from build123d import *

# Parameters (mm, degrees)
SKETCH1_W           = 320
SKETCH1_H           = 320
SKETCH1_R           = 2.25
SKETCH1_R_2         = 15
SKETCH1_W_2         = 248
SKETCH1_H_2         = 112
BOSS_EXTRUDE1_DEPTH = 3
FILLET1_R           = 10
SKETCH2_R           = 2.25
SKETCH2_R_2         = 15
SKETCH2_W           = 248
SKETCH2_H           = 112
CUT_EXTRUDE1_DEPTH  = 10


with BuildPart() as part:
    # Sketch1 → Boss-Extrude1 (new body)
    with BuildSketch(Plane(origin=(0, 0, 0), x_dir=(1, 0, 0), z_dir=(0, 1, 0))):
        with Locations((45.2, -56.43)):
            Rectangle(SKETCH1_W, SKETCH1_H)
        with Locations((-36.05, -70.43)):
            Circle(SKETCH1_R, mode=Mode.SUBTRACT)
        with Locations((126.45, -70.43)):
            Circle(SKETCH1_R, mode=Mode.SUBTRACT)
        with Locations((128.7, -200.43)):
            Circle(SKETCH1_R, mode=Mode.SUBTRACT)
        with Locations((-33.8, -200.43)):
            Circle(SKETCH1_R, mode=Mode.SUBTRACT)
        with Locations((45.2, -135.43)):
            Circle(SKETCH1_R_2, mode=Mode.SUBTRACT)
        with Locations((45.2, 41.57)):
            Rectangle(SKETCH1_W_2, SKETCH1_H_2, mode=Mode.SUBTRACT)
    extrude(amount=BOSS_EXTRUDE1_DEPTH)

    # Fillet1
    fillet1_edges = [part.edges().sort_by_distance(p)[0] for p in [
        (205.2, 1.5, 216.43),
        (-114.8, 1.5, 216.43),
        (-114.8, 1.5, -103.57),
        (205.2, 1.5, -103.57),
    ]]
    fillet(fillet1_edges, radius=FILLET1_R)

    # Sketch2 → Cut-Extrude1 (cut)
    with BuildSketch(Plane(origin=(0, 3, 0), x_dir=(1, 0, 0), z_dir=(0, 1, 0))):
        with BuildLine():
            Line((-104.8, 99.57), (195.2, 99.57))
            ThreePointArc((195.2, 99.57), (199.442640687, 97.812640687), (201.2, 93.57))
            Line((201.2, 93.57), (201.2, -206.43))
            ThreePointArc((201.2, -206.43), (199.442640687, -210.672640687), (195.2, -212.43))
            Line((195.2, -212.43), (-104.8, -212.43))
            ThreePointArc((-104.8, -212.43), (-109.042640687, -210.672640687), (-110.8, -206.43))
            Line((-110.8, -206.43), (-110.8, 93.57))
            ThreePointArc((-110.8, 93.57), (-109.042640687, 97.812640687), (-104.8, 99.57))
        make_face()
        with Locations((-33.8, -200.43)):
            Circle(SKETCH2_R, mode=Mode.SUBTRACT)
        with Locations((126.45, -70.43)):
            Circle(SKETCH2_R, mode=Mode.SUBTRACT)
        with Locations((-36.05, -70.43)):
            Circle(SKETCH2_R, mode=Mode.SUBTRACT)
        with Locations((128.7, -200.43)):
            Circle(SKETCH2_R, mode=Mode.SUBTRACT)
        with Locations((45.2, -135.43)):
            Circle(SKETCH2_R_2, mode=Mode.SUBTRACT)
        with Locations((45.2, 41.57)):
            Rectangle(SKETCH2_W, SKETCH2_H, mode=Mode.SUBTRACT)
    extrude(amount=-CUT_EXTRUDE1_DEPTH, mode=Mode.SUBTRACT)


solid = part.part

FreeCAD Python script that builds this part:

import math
import FreeCAD as App
import Part
import Sketcher


def edges_at(feature, points):
    """Names of the edges that pass closest to the given points."""
    edges = feature.Shape.Edges
    near = lambda p: min(range(len(edges)), key=lambda i: edges[i].distToShape(Part.Vertex(*p))[0])
    return sorted({f"Edge{near(p) + 1}" for p in points})


def add_polygon(sketch, points):
    """Adds a closed chain of lines whose ends are joined by coincident constraints."""
    first, n = sketch.GeometryCount, len(points)
    for a, b in zip(points, points[1:] + points[:1]):
        sketch.addGeometry(Part.LineSegment(App.Vector(*a, 0), App.Vector(*b, 0)), False)
    for i in range(n):
        sketch.addConstraint(Sketcher.Constraint("Coincident", first + i, 2, first + (i + 1) % n, 1))

doc = App.newDocument("Part")
body = doc.addObject("PartDesign::Body", "Body")

# Sketch on XZ plane
sketch1 = doc.addObject("Sketcher::SketchObject", "Sketch")
body.addObject(sketch1)
sketch1.AttachmentSupport = (doc.XZ_Plane, [""])
sketch1.MapMode = "FlatFace"
add_polygon(sketch1, [(-114.8, -103.57), (-114.8, 216.43), (205.2, 216.43), (205.2, -103.57)])  # lines 0-3
sketch1.addGeometry(Part.Circle(App.Vector(-33.8, 200.43, 0), App.Vector(0, 0, 1), 2.25), False)  # 4
sketch1.addGeometry(Part.Circle(App.Vector(-36.05, 70.43, 0), App.Vector(0, 0, 1), 2.25), False)  # 5
sketch1.addGeometry(Part.Circle(App.Vector(45.2, 135.43, 0), App.Vector(0, 0, 1), 15), False)  # 6
sketch1.addGeometry(Part.Circle(App.Vector(128.7, 200.43, 0), App.Vector(0, 0, 1), 2.25), False)  # 7
sketch1.addGeometry(Part.Circle(App.Vector(126.45, 70.43, 0), App.Vector(0, 0, 1), 2.25), False)  # 8
add_polygon(sketch1, [(169.2, 14.43), (-78.8, 14.43), (-78.8, -97.57), (169.2, -97.57)])  # lines 9-12
sketch1.addConstraint(Sketcher.Constraint("Vertical", 0))
sketch1.addConstraint(Sketcher.Constraint("Horizontal", 1))
sketch1.addConstraint(Sketcher.Constraint("Vertical", 2))
sketch1.addConstraint(Sketcher.Constraint("Horizontal", 3))
sketch1.addConstraint(Sketcher.Constraint("Horizontal", 9))
sketch1.addConstraint(Sketcher.Constraint("Vertical", 10))
sketch1.addConstraint(Sketcher.Constraint("Horizontal", 11))
sketch1.addConstraint(Sketcher.Constraint("Vertical", 12))
sketch1.addConstraint(Sketcher.Constraint("Equal", 4, 5))
sketch1.addConstraint(Sketcher.Constraint("Equal", 5, 7))
sketch1.addConstraint(Sketcher.Constraint("Equal", 7, 8))
sketch1.addConstraint(Sketcher.Constraint("Horizontal", 4, 3, 7, 3))
sketch1.addConstraint(Sketcher.Constraint("Horizontal", 5, 3, 8, 3))
sketch1.addConstraint(Sketcher.Constraint("Equal", 3, 0))
sketch1.addConstraint(Sketcher.Constraint("Diameter", 6, 30.0))
sketch1.addConstraint(Sketcher.Constraint("Diameter", 4, 4.5))
sketch1.addConstraint(Sketcher.Constraint("DistanceX", 1, 1, 1, 2, 320.0))
sketch1.addConstraint(Sketcher.Constraint("DistanceX", 9, 2, 9, 1, 248.0))
sketch1.addConstraint(Sketcher.Constraint("DistanceY", 10, 2, 10, 1, 112.0))
sketch1.addConstraint(Sketcher.Constraint("DistanceY", 5, 3, 4, 3, 130.0))
sketch1.addConstraint(Sketcher.Constraint("DistanceX", 4, 3, 6, 3, 79.0))
sketch1.addConstraint(Sketcher.Constraint("DistanceY", 6, 3, 4, 3, 65.0))
sketch1.addConstraint(Sketcher.Constraint("DistanceX", 0, 2, 4, 3, 81.0))
sketch1.addConstraint(Sketcher.Constraint("DistanceY", 4, 3, 0, 2, 16.0))
sketch1.addConstraint(Sketcher.Constraint("DistanceY", 9, 2, 5, 3, 56.0))
sketch1.addConstraint(Sketcher.Constraint("DistanceX", 3, 2, 9, 2, 36.0))
sketch1.addConstraint(Sketcher.Constraint("DistanceX", 4, 3, -1, 1, 33.8))
sketch1.addConstraint(Sketcher.Constraint("DistanceX", -1, 1, 7, 3, 128.7))
sketch1.addConstraint(Sketcher.Constraint("DistanceX", 5, 3, 8, 3, 162.5))
sketch1.addConstraint(Sketcher.Constraint("DistanceY", -1, 1, 4, 3, 200.43))
sketch1.addConstraint(Sketcher.Constraint("DistanceX", 5, 3, -1, 1, 36.05))
pad1 = doc.addObject("PartDesign::Pad", "Pad")
body.addObject(pad1)
pad1.Profile = sketch1
pad1.Length = 3
pad1.Reversed = True
doc.recompute()

fillet = doc.addObject("PartDesign::Fillet", "Fillet")
body.addObject(fillet)
fillet.Base = (pad1, edges_at(pad1, [
    (205.2, 1.5, 216.43),
    (-114.8, 1.5, 216.43),
    (-114.8, 1.5, -103.57),
    (205.2, 1.5, -103.57),
]))
fillet.Radius = 10

# Sketch on XZ plane
sketch2 = doc.addObject("Sketcher::SketchObject", "Sketch001")
body.addObject(sketch2)
sketch2.AttachmentSupport = (doc.XZ_Plane, [""])
sketch2.MapMode = "FlatFace"
sketch2.AttachmentOffset = App.Placement(App.Vector(0, 0, -3), App.Rotation())
sketch2.addGeometry(Part.LineSegment(App.Vector(195.2, -99.57, 0), App.Vector(-104.8, -99.57, 0)), False)  # 0
sketch2.addGeometry(Part.ArcOfCircle(Part.Circle(App.Vector(-104.8, -93.57, 0), App.Vector(0, 0, 1), 6), math.radians(180), math.radians(270)), False)  # 1
sketch2.addGeometry(Part.LineSegment(App.Vector(-110.8, -93.57, 0), App.Vector(-110.8, 206.43, 0)), False)  # 2
sketch2.addGeometry(Part.ArcOfCircle(Part.Circle(App.Vector(-104.8, 206.43, 0), App.Vector(0, 0, 1), 6), math.radians(90), math.radians(180)), False)  # 3
sketch2.addGeometry(Part.LineSegment(App.Vector(-104.8, 212.43, 0), App.Vector(195.2, 212.43, 0)), False)  # 4
sketch2.addGeometry(Part.ArcOfCircle(Part.Circle(App.Vector(195.2, 206.43, 0), App.Vector(0, 0, 1), 6), math.radians(0), math.radians(90)), False)  # 5
sketch2.addGeometry(Part.LineSegment(App.Vector(201.2, 206.43, 0), App.Vector(201.2, -93.57, 0)), False)  # 6
sketch2.addGeometry(Part.ArcOfCircle(Part.Circle(App.Vector(195.2, -93.57, 0), App.Vector(0, 0, 1), 6), math.radians(-90), math.radians(0)), False)  # 7
sketch2.addGeometry(Part.Circle(App.Vector(128.7, 200.43, 0), App.Vector(0, 0, 1), 2.25), False)  # 8
sketch2.addGeometry(Part.Circle(App.Vector(126.45, 70.43, 0), App.Vector(0, 0, 1), 2.25), False)  # 9
sketch2.addGeometry(Part.Circle(App.Vector(45.2, 135.43, 0), App.Vector(0, 0, 1), 15), False)  # 10
sketch2.addGeometry(Part.Circle(App.Vector(-33.8, 200.43, 0), App.Vector(0, 0, 1), 2.25), False)  # 11
sketch2.addGeometry(Part.Circle(App.Vector(-36.05, 70.43, 0), App.Vector(0, 0, 1), 2.25), False)  # 12
add_polygon(sketch2, [(-78.8, 14.43), (-78.8, -97.57), (169.2, -97.57), (169.2, 14.43)])  # lines 13-16
sketch2.addConstraint(Sketcher.Constraint("Tangent", 0, 2, 1, 2))
sketch2.addConstraint(Sketcher.Constraint("Tangent", 1, 1, 2, 1))
sketch2.addConstraint(Sketcher.Constraint("Tangent", 2, 2, 3, 2))
sketch2.addConstraint(Sketcher.Constraint("Tangent", 3, 1, 4, 1))
sketch2.addConstraint(Sketcher.Constraint("Tangent", 4, 2, 5, 2))
sketch2.addConstraint(Sketcher.Constraint("Tangent", 5, 1, 6, 1))
sketch2.addConstraint(Sketcher.Constraint("Tangent", 6, 2, 7, 2))
sketch2.addConstraint(Sketcher.Constraint("Tangent", 7, 1, 0, 1))
sketch2.addConstraint(Sketcher.Constraint("Horizontal", 0))
sketch2.addConstraint(Sketcher.Constraint("Vertical", 2))
sketch2.addConstraint(Sketcher.Constraint("Horizontal", 4))
sketch2.addConstraint(Sketcher.Constraint("Vertical", 6))
sketch2.addConstraint(Sketcher.Constraint("Vertical", 13))
sketch2.addConstraint(Sketcher.Constraint("Horizontal", 14))
sketch2.addConstraint(Sketcher.Constraint("Vertical", 15))
sketch2.addConstraint(Sketcher.Constraint("Horizontal", 16))
sketch2.addConstraint(Sketcher.Constraint("Equal", 1, 3))
sketch2.addConstraint(Sketcher.Constraint("Equal", 3, 5))
sketch2.addConstraint(Sketcher.Constraint("Equal", 5, 7))
sketch2.addConstraint(Sketcher.Constraint("Equal", 8, 9))
sketch2.addConstraint(Sketcher.Constraint("Equal", 9, 11))
sketch2.addConstraint(Sketcher.Constraint("Equal", 11, 12))
sketch2.addConstraint(Sketcher.Constraint("Horizontal", 8, 3, 11, 3))
sketch2.addConstraint(Sketcher.Constraint("Horizontal", 9, 3, 12, 3))
sketch2.addConstraint(Sketcher.Constraint("Equal", 4, 2))
sketch2.addConstraint(Sketcher.Constraint("Diameter", 10, 30.0))
sketch2.addConstraint(Sketcher.Constraint("Radius", 1, 6.0))
sketch2.addConstraint(Sketcher.Constraint("Diameter", 8, 4.5))
sketch2.addConstraint(Sketcher.Constraint("DistanceX", 0, 2, 0, 1, 300.0))
sketch2.addConstraint(Sketcher.Constraint("DistanceX", 14, 1, 14, 2, 248.0))
sketch2.addConstraint(Sketcher.Constraint("DistanceY", 13, 2, 13, 1, 112.0))
sketch2.addConstraint(Sketcher.Constraint("DistanceY", 8, 3, 5, 3, 6.0))
sketch2.addConstraint(Sketcher.Constraint("DistanceY", 9, 3, 8, 3, 130.0))
sketch2.addConstraint(Sketcher.Constraint("DistanceY", 9, 3, 10, 3, 65.0))
sketch2.addConstraint(Sketcher.Constraint("DistanceX", 3, 3, 10, 3, 150.0))
sketch2.addConstraint(Sketcher.Constraint("DistanceX", 3, 3, 11, 3, 71.0))
sketch2.addConstraint(Sketcher.Constraint("DistanceX", 0, 2, 13, 2, 26.0))
sketch2.addConstraint(Sketcher.Constraint("DistanceY", 0, 2, 13, 2, 2.0))
sketch2.addConstraint(Sketcher.Constraint("DistanceX", 1, 3, -1, 1, 104.8))
sketch2.addConstraint(Sketcher.Constraint("DistanceX", -1, 1, 8, 3, 128.7))
sketch2.addConstraint(Sketcher.Constraint("DistanceX", 12, 3, 9, 3, 162.5))
sketch2.addConstraint(Sketcher.Constraint("DistanceY", 1, 3, -1, 1, 93.57))
sketch2.addConstraint(Sketcher.Constraint("DistanceX", -1, 1, 9, 3, 126.45))
pocket1 = doc.addObject("PartDesign::Pocket", "Pocket")
body.addObject(pocket1)
pocket1.Profile = sketch2
pocket1.Length = 10
pocket1.Reversed = True

doc.recompute()
